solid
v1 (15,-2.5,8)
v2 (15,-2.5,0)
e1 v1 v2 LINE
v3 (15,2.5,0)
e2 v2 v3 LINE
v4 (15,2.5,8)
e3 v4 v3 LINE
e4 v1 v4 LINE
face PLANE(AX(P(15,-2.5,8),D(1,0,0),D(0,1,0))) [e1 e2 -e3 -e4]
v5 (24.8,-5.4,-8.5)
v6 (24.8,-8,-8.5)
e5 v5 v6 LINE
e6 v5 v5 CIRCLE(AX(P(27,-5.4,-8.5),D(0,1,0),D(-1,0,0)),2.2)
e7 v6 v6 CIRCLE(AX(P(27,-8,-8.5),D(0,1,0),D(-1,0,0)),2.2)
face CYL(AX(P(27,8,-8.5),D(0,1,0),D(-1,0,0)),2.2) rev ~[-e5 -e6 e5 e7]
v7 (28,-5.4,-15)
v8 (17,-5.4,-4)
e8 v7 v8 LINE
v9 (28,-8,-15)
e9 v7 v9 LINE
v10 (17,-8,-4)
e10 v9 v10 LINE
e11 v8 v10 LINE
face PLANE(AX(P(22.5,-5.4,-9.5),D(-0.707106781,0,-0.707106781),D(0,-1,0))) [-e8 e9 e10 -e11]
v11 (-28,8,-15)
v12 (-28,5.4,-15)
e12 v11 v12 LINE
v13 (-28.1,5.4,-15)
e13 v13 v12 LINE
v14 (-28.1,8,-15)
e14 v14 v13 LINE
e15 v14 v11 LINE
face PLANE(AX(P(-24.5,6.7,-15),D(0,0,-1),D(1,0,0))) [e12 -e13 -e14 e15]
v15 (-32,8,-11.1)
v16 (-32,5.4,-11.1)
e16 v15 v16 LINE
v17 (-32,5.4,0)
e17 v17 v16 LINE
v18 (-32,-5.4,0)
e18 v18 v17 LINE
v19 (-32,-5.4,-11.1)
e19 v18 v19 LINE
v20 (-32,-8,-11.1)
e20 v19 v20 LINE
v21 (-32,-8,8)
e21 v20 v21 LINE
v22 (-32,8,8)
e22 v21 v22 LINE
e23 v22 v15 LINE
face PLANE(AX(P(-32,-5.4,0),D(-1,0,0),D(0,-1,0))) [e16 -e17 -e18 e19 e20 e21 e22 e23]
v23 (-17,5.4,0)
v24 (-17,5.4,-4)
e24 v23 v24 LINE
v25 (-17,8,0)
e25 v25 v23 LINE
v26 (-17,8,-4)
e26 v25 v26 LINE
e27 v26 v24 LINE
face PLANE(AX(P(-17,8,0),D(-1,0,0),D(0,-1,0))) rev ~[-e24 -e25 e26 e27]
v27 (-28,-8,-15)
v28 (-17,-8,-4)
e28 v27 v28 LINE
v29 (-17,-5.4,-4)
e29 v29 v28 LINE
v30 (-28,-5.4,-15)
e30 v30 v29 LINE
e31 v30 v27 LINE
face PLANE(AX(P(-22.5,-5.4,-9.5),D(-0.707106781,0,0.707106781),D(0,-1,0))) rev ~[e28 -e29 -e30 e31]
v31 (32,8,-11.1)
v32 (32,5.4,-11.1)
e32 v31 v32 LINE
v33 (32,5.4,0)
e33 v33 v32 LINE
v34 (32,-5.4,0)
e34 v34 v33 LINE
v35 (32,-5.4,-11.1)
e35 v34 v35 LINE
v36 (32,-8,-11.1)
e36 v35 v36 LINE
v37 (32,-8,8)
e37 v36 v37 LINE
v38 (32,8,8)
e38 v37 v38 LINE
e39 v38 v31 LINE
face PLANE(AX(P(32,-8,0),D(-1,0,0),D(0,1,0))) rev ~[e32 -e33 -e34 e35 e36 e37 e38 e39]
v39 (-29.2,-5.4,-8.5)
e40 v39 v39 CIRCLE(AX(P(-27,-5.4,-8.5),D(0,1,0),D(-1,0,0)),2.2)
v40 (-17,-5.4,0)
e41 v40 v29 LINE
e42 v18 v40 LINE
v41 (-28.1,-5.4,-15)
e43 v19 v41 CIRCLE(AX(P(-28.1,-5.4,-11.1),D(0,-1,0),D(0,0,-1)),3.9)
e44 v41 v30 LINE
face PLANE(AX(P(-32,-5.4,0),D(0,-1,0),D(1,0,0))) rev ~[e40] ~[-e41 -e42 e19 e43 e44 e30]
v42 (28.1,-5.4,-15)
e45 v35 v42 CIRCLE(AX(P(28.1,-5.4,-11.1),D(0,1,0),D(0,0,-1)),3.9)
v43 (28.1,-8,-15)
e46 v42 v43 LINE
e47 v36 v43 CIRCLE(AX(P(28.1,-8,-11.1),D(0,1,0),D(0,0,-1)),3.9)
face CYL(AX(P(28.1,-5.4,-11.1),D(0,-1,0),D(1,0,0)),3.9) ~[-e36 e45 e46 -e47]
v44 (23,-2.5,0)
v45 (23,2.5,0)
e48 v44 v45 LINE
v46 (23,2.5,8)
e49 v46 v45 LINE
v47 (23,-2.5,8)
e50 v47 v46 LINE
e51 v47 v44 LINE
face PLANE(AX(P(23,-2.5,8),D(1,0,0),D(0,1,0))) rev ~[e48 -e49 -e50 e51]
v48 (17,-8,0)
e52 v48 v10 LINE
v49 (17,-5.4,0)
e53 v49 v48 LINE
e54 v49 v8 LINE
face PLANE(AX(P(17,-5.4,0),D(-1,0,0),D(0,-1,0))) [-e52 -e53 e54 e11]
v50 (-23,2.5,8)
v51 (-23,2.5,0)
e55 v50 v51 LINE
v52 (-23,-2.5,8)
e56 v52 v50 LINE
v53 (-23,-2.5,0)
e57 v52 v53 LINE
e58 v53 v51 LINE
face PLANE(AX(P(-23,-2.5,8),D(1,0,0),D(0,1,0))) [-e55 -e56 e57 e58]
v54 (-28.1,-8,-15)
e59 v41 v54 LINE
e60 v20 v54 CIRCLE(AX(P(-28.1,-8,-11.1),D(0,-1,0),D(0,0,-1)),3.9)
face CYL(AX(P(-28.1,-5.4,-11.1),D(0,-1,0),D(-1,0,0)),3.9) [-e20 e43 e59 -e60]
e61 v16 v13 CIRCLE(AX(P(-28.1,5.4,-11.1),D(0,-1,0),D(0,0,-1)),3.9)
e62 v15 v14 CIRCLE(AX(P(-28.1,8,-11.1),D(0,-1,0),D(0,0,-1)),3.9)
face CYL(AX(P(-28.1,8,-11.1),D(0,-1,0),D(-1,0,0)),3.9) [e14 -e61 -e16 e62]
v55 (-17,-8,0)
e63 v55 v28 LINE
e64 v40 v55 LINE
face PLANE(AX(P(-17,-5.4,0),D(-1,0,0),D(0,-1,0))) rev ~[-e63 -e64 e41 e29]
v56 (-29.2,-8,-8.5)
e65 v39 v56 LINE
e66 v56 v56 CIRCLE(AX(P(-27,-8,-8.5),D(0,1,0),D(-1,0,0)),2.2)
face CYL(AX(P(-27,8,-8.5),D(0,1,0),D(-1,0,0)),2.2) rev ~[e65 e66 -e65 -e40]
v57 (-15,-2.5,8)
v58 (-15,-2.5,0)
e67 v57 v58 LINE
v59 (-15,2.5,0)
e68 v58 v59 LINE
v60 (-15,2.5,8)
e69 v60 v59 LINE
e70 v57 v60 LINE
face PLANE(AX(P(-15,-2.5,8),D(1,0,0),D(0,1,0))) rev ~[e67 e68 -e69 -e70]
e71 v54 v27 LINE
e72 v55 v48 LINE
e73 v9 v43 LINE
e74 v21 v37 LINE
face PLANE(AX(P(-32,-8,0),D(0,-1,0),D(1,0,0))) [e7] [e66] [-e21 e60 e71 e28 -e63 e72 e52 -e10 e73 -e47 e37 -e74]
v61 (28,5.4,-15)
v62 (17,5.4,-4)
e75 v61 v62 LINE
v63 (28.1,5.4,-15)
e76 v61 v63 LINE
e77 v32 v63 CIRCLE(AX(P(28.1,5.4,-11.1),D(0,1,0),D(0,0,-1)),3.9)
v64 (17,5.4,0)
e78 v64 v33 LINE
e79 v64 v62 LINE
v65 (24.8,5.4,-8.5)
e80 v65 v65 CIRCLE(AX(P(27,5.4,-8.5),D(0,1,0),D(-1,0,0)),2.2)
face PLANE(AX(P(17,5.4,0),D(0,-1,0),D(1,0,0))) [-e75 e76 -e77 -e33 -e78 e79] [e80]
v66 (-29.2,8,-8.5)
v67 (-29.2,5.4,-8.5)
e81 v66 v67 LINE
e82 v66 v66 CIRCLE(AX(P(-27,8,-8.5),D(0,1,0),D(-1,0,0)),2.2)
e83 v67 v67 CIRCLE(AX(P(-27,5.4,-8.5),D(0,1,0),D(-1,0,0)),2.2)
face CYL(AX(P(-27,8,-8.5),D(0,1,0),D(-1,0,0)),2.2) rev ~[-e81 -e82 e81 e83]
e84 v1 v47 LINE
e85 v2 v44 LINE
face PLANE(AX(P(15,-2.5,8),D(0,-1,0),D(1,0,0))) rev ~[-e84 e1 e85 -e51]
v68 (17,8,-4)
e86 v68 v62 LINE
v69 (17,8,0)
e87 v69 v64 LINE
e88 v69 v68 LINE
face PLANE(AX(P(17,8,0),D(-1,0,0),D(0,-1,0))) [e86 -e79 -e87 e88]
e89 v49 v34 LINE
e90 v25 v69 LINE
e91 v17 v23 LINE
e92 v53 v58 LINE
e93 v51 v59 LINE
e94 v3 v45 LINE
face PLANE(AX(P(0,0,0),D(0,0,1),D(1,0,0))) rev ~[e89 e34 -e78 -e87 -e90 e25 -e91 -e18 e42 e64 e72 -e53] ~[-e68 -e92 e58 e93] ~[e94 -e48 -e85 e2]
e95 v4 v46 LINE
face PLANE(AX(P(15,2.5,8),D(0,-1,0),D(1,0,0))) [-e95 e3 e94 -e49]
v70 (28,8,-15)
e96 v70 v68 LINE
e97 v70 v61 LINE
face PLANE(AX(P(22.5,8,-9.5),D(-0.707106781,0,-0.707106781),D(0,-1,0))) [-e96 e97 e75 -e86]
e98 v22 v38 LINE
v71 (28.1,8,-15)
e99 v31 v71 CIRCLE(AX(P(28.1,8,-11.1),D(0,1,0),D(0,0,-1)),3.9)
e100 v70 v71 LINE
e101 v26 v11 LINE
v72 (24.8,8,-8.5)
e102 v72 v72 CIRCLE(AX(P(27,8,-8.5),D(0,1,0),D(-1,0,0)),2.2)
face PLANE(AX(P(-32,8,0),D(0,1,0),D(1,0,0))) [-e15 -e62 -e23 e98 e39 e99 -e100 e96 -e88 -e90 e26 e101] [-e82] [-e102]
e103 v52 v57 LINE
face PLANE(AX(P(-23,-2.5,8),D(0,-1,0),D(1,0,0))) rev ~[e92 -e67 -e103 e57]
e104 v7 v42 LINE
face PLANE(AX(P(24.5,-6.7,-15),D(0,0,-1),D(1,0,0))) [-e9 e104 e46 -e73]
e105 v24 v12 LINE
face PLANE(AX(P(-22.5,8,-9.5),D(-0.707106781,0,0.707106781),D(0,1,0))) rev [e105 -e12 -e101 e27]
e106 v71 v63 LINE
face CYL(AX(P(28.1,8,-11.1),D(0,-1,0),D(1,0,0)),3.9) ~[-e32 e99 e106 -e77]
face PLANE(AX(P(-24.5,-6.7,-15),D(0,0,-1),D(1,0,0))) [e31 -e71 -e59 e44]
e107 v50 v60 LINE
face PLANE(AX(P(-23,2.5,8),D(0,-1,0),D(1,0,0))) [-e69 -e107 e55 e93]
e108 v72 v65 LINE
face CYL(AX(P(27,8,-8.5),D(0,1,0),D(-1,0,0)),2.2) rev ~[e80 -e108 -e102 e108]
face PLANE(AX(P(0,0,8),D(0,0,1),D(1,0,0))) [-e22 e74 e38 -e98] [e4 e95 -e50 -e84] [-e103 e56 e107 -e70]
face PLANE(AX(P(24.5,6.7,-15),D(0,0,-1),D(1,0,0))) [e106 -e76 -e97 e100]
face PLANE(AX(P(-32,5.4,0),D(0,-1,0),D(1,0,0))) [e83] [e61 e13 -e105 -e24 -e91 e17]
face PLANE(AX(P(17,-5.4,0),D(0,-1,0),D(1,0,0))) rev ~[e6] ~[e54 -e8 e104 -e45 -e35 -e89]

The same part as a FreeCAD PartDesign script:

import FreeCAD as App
import Part
import Sketcher

V = App.Vector


def edges_at(feature, points):
    """Names of the edges that pass closest to the given points."""
    edges = feature.Shape.Edges
    near = lambda p: min(range(len(edges)), key=lambda i: edges[i].distToShape(Part.Vertex(*p))[0])
    return sorted({f"Edge{near(p) + 1}" for p in points})

doc = App.newDocument("Part")
body = doc.addObject("PartDesign::Body", "Body")

# Sketch on XY plane
sketch1 = body.newObject("Sketcher::SketchObject", "Sketch")
sketch1.AttachmentSupport = (doc.getObject("XY_Plane"), [""])
sketch1.MapMode = "FlatFace"
sketch1.addGeometry([
    Part.LineSegment(V(-32, 8, 0), V(-32, -8, 0)),
    Part.LineSegment(V(-32, -8, 0), V(32, -8, 0)),
    Part.LineSegment(V(32, -8, 0), V(32, 8, 0)),
    Part.LineSegment(V(32, 8, 0), V(-32, 8, 0)),
], False)
sketch1.addConstraint([
    Sketcher.Constraint("Coincident", 0, 2, 1, 1),
    Sketcher.Constraint("Coincident", 1, 2, 2, 1),
    Sketcher.Constraint("Coincident", 2, 2, 3, 1),
    Sketcher.Constraint("Coincident", 3, 2, 0, 1),
    Sketcher.Constraint("Vertical", 0),
    Sketcher.Constraint("Horizontal", 1),
    Sketcher.Constraint("Vertical", 2),
    Sketcher.Constraint("Horizontal", 3),
    Sketcher.Constraint("Symmetric", 0, 2, 2, 2, -1, 1),
    Sketcher.Constraint("DistanceX", 1, 1, 1, 2, 64.0),
    Sketcher.Constraint("DistanceY", 0, 2, 0, 1, 16.0),
])
pad1 = body.newObject("PartDesign::Pad", "Pad")
pad1.Profile = sketch1
pad1.Length = 8

# Sketch on XY plane
sketch2 = body.newObject("Sketcher::SketchObject", "Sketch001")
sketch2.AttachmentSupport = (doc.getObject("XY_Plane"), [""])
sketch2.MapMode = "FlatFace"
sketch2.addGeometry([
    Part.LineSegment(V(-32, -8, 0), V(-32, -5.4, 0)),  # 0
    Part.LineSegment(V(-32, -5.4, 0), V(-17, -5.4, 0)),  # 1
    Part.LineSegment(V(-17, -5.4, 0), V(-17, -8, 0)),  # 2
    Part.LineSegment(V(-17, -8, 0), V(-32, -8, 0)),  # 3
    Part.LineSegment(V(-32, 5.4, 0), V(-32, 8, 0)),  # 4
    Part.LineSegment(V(-32, 8, 0), V(-17, 8, 0)),  # 5
    Part.LineSegment(V(-17, 8, 0), V(-17, 5.4, 0)),  # 6
    Part.LineSegment(V(-17, 5.4, 0), V(-32, 5.4, 0)),  # 7
    Part.LineSegment(V(17, -8, 0), V(17, -5.4, 0)),  # 8
    Part.LineSegment(V(17, -5.4, 0), V(32, -5.4, 0)),  # 9
    Part.LineSegment(V(32, -5.4, 0), V(32, -8, 0)),  # 10
    Part.LineSegment(V(32, -8, 0), V(17, -8, 0)),  # 11
    Part.LineSegment(V(17, 5.4, 0), V(17, 8, 0)),  # 12
    Part.LineSegment(V(17, 8, 0), V(32, 8, 0)),  # 13
    Part.LineSegment(V(32, 8, 0), V(32, 5.4, 0)),  # 14
    Part.LineSegment(V(32, 5.4, 0), V(17, 5.4, 0)),  # 15
], False)
sketch2.addConstraint([
    Sketcher.Constraint("Coincident", 0, 2, 1, 1),
    Sketcher.Constraint("Coincident", 1, 2, 2, 1),
    Sketcher.Constraint("Coincident", 2, 2, 3, 1),
    Sketcher.Constraint("Coincident", 3, 2, 0, 1),
    Sketcher.Constraint("Coincident", 4, 2, 5, 1),
    Sketcher.Constraint("Coincident", 5, 2, 6, 1),
    Sketcher.Constraint("Coincident", 6, 2, 7, 1),
    Sketcher.Constraint("Coincident", 7, 2, 4, 1),
    Sketcher.Constraint("Coincident", 8, 2, 9, 1),
    Sketcher.Constraint("Coincident", 9, 2, 10, 1),
    Sketcher.Constraint("Coincident", 10, 2, 11, 1),
    Sketcher.Constraint("Coincident", 11, 2, 8, 1),
    Sketcher.Constraint("Coincident", 12, 2, 13, 1),
    Sketcher.Constraint("Coincident", 13, 2, 14, 1),
    Sketcher.Constraint("Coincident", 14, 2, 15, 1),
    Sketcher.Constraint("Coincident", 15, 2, 12, 1),
    Sketcher.Constraint("Vertical", 0),
    Sketcher.Constraint("Horizontal", 1),
    Sketcher.Constraint("Vertical", 2),
    Sketcher.Constraint("Horizontal", 3),
    Sketcher.Constraint("Vertical", 4),
    Sketcher.Constraint("Horizontal", 5),
    Sketcher.Constraint("Vertical", 6),
    Sketcher.Constraint("Horizontal", 7),
    Sketcher.Constraint("Vertical", 8),
    Sketcher.Constraint("Horizontal", 9),
    Sketcher.Constraint("Vertical", 10),
    Sketcher.Constraint("Horizontal", 11),
    Sketcher.Constraint("Vertical", 12),
    Sketcher.Constraint("Horizontal", 13),
    Sketcher.Constraint("Vertical", 14),
    Sketcher.Constraint("Horizontal", 15),
    Sketcher.Constraint("Symmetric", 6, 2, 8, 2, -1, 1),
    Sketcher.Constraint("Symmetric", 4, 2, 10, 2, -1, 1),
    Sketcher.Constraint("Symmetric", 2, 2, 12, 2, -1, 1),
    Sketcher.Constraint("Symmetric", 0, 2, 14, 2, -1, 1),
    Sketcher.Constraint("Symmetric", 1, 2, 8, 2, -2),
    Sketcher.Constraint("Symmetric", 3, 2, 10, 2, -2),
    Sketcher.Constraint("DistanceX", 1, 1, 1, 2, 15.0),
    Sketcher.Constraint("DistanceY", 0, 1, 0, 2, 2.6),
    Sketcher.Constraint("DistanceX", 0, 2, -1, 1, 32.0),
    Sketcher.Constraint("DistanceY", 2, 2, -1, 1, 8.0),
])
pad2 = body.newObject("PartDesign::Pad", "Pad001")
pad2.Profile = sketch2
pad2.Length = 15
pad2.Reversed = True

# Sketch on XZ plane
sketch3 = body.newObject("Sketcher::SketchObject", "Sketch002")
sketch3.AttachmentSupport = (doc.getObject("XZ_Plane"), [""])
sketch3.MapMode = "FlatFace"
sketch3.AttachmentOffset = App.Placement(V(0, 0, -8), App.Rotation())
sketch3.addGeometry([
    Part.Circle(V(27, -8.5, 0), V(0, 0, 1), 2.2),
    Part.Circle(V(-27, -8.5, 0), V(0, 0, 1), 2.2),
], False)
sketch3.addConstraint([
    Sketcher.Constraint("Equal", 0, 1),
    Sketcher.Constraint("Symmetric", 0, 3, 1, 3, -2),
    Sketcher.Constraint("Diameter", 0, 4.4),
    Sketcher.Constraint("DistanceX", -1, 1, 0, 3, 27.0),
    Sketcher.Constraint("DistanceY", 0, 3, -1, 1, 8.5),
])
pocket1 = body.newObject("PartDesign::Pocket", "Pocket")
pocket1.Profile = sketch3
pocket1.Length = 16
pocket1.Reversed = True
doc.recompute()

chamfer = body.newObject("PartDesign::Chamfer", "Chamfer")
chamfer.Base = (pocket1, edges_at(pocket1, [(17, 6.7, -15)]))
chamfer.Size = 11
doc.recompute()

chamfer2 = body.newObject("PartDesign::Chamfer", "Chamfer001")
chamfer2.Base = (chamfer, edges_at(chamfer, [(17, -6.7, -15)]))
chamfer2.Size = 11
doc.recompute()

chamfer3 = body.newObject("PartDesign::Chamfer", "Chamfer002")
chamfer3.Base = (chamfer2, edges_at(chamfer2, [(-17, 6.7, -15)]))
chamfer3.Size = 11
doc.recompute()

chamfer4 = body.newObject("PartDesign::Chamfer", "Chamfer003")
chamfer4.Base = (chamfer3, edges_at(chamfer3, [(-17, -6.7, -15)]))
chamfer4.Size = 11
doc.recompute()

fillet = body.newObject("PartDesign::Fillet", "Fillet")
fillet.Base = (chamfer4, edges_at(chamfer4, [(-32, 6.7, -15)]))
fillet.Radius = 3.9
doc.recompute()

fillet2 = body.newObject("PartDesign::Fillet", "Fillet001")
fillet2.Base = (fillet, edges_at(fillet, [(-32, -6.7, -15)]))
fillet2.Radius = 3.9
doc.recompute()

fillet3 = body.newObject("PartDesign::Fillet", "Fillet002")
fillet3.Base = (fillet2, edges_at(fillet2, [(32, -6.7, -15)]))
fillet3.Radius = 3.9
doc.recompute()

fillet4 = body.newObject("PartDesign::Fillet", "Fillet003")
fillet4.Base = (fillet3, edges_at(fillet3, [(32, 6.7, -15)]))
fillet4.Radius = 3.9

# Sketch on XY plane
sketch4 = body.newObject("Sketcher::SketchObject", "Sketch003")
sketch4.AttachmentSupport = (doc.getObject("XY_Plane"), [""])
sketch4.MapMode = "FlatFace"
sketch4.AttachmentOffset = App.Placement(V(0, 0, 8), App.Rotation())
sketch4.addGeometry([
    Part.LineSegment(V(-23, 2, 0), V(-23, -2, 0)),  # 0
    Part.LineSegment(V(-23, -2, 0), V(-15, -2, 0)),  # 1
    Part.LineSegment(V(-15, -2, 0), V(-15, 2, 0)),  # 2
    Part.LineSegment(V(-15, 2, 0), V(-23, 2, 0)),  # 3
    Part.LineSegment(V(15, 2, 0), V(15, -2, 0)),  # 4
    Part.LineSegment(V(15, -2, 0), V(23, -2, 0)),  # 5
    Part.LineSegment(V(23, -2, 0), V(23, 2, 0)),  # 6
    Part.LineSegment(V(23, 2, 0), V(15, 2, 0)),  # 7
], False)
sketch4.addConstraint([
    Sketcher.Constraint("Coincident", 0, 2, 1, 1),
    Sketcher.Constraint("Coincident", 1, 2, 2, 1),
    Sketcher.Constraint("Coincident", 2, 2, 3, 1),
    Sketcher.Constraint("Coincident", 3, 2, 0, 1),
    Sketcher.Constraint("Coincident", 4, 2, 5, 1),
    Sketcher.Constraint("Coincident", 5, 2, 6, 1),
    Sketcher.Constraint("Coincident", 6, 2, 7, 1),
    Sketcher.Constraint("Coincident", 7, 2, 4, 1),
    Sketcher.Constraint("Vertical", 0),
    Sketcher.Constraint("Horizontal", 1),
    Sketcher.Constraint("Vertical", 2),
    Sketcher.Constraint("Horizontal", 3),
    Sketcher.Constraint("Vertical", 4),
    Sketcher.Constraint("Horizontal", 5),
    Sketcher.Constraint("Vertical", 6),
    Sketcher.Constraint("Horizontal", 7),
    Sketcher.Constraint("Symmetric", 2, 2, 4, 2, -1, 1),
    Sketcher.Constraint("Symmetric", 0, 2, 6, 2, -1, 1),
    Sketcher.Constraint("Horizontal", 1, 2, 4, 2),
    Sketcher.Constraint("DistanceX", 1, 1, 1, 2, 8.0),
    Sketcher.Constraint("DistanceY", 0, 2, 0, 1, 5.0),
    Sketcher.Constraint("DistanceX", 0, 2, -1, 1, 23.0),
])
pocket2 = body.newObject("PartDesign::Pocket", "Pocket001")
pocket2.Profile = sketch4
pocket2.Length = 8

doc.recompute()
